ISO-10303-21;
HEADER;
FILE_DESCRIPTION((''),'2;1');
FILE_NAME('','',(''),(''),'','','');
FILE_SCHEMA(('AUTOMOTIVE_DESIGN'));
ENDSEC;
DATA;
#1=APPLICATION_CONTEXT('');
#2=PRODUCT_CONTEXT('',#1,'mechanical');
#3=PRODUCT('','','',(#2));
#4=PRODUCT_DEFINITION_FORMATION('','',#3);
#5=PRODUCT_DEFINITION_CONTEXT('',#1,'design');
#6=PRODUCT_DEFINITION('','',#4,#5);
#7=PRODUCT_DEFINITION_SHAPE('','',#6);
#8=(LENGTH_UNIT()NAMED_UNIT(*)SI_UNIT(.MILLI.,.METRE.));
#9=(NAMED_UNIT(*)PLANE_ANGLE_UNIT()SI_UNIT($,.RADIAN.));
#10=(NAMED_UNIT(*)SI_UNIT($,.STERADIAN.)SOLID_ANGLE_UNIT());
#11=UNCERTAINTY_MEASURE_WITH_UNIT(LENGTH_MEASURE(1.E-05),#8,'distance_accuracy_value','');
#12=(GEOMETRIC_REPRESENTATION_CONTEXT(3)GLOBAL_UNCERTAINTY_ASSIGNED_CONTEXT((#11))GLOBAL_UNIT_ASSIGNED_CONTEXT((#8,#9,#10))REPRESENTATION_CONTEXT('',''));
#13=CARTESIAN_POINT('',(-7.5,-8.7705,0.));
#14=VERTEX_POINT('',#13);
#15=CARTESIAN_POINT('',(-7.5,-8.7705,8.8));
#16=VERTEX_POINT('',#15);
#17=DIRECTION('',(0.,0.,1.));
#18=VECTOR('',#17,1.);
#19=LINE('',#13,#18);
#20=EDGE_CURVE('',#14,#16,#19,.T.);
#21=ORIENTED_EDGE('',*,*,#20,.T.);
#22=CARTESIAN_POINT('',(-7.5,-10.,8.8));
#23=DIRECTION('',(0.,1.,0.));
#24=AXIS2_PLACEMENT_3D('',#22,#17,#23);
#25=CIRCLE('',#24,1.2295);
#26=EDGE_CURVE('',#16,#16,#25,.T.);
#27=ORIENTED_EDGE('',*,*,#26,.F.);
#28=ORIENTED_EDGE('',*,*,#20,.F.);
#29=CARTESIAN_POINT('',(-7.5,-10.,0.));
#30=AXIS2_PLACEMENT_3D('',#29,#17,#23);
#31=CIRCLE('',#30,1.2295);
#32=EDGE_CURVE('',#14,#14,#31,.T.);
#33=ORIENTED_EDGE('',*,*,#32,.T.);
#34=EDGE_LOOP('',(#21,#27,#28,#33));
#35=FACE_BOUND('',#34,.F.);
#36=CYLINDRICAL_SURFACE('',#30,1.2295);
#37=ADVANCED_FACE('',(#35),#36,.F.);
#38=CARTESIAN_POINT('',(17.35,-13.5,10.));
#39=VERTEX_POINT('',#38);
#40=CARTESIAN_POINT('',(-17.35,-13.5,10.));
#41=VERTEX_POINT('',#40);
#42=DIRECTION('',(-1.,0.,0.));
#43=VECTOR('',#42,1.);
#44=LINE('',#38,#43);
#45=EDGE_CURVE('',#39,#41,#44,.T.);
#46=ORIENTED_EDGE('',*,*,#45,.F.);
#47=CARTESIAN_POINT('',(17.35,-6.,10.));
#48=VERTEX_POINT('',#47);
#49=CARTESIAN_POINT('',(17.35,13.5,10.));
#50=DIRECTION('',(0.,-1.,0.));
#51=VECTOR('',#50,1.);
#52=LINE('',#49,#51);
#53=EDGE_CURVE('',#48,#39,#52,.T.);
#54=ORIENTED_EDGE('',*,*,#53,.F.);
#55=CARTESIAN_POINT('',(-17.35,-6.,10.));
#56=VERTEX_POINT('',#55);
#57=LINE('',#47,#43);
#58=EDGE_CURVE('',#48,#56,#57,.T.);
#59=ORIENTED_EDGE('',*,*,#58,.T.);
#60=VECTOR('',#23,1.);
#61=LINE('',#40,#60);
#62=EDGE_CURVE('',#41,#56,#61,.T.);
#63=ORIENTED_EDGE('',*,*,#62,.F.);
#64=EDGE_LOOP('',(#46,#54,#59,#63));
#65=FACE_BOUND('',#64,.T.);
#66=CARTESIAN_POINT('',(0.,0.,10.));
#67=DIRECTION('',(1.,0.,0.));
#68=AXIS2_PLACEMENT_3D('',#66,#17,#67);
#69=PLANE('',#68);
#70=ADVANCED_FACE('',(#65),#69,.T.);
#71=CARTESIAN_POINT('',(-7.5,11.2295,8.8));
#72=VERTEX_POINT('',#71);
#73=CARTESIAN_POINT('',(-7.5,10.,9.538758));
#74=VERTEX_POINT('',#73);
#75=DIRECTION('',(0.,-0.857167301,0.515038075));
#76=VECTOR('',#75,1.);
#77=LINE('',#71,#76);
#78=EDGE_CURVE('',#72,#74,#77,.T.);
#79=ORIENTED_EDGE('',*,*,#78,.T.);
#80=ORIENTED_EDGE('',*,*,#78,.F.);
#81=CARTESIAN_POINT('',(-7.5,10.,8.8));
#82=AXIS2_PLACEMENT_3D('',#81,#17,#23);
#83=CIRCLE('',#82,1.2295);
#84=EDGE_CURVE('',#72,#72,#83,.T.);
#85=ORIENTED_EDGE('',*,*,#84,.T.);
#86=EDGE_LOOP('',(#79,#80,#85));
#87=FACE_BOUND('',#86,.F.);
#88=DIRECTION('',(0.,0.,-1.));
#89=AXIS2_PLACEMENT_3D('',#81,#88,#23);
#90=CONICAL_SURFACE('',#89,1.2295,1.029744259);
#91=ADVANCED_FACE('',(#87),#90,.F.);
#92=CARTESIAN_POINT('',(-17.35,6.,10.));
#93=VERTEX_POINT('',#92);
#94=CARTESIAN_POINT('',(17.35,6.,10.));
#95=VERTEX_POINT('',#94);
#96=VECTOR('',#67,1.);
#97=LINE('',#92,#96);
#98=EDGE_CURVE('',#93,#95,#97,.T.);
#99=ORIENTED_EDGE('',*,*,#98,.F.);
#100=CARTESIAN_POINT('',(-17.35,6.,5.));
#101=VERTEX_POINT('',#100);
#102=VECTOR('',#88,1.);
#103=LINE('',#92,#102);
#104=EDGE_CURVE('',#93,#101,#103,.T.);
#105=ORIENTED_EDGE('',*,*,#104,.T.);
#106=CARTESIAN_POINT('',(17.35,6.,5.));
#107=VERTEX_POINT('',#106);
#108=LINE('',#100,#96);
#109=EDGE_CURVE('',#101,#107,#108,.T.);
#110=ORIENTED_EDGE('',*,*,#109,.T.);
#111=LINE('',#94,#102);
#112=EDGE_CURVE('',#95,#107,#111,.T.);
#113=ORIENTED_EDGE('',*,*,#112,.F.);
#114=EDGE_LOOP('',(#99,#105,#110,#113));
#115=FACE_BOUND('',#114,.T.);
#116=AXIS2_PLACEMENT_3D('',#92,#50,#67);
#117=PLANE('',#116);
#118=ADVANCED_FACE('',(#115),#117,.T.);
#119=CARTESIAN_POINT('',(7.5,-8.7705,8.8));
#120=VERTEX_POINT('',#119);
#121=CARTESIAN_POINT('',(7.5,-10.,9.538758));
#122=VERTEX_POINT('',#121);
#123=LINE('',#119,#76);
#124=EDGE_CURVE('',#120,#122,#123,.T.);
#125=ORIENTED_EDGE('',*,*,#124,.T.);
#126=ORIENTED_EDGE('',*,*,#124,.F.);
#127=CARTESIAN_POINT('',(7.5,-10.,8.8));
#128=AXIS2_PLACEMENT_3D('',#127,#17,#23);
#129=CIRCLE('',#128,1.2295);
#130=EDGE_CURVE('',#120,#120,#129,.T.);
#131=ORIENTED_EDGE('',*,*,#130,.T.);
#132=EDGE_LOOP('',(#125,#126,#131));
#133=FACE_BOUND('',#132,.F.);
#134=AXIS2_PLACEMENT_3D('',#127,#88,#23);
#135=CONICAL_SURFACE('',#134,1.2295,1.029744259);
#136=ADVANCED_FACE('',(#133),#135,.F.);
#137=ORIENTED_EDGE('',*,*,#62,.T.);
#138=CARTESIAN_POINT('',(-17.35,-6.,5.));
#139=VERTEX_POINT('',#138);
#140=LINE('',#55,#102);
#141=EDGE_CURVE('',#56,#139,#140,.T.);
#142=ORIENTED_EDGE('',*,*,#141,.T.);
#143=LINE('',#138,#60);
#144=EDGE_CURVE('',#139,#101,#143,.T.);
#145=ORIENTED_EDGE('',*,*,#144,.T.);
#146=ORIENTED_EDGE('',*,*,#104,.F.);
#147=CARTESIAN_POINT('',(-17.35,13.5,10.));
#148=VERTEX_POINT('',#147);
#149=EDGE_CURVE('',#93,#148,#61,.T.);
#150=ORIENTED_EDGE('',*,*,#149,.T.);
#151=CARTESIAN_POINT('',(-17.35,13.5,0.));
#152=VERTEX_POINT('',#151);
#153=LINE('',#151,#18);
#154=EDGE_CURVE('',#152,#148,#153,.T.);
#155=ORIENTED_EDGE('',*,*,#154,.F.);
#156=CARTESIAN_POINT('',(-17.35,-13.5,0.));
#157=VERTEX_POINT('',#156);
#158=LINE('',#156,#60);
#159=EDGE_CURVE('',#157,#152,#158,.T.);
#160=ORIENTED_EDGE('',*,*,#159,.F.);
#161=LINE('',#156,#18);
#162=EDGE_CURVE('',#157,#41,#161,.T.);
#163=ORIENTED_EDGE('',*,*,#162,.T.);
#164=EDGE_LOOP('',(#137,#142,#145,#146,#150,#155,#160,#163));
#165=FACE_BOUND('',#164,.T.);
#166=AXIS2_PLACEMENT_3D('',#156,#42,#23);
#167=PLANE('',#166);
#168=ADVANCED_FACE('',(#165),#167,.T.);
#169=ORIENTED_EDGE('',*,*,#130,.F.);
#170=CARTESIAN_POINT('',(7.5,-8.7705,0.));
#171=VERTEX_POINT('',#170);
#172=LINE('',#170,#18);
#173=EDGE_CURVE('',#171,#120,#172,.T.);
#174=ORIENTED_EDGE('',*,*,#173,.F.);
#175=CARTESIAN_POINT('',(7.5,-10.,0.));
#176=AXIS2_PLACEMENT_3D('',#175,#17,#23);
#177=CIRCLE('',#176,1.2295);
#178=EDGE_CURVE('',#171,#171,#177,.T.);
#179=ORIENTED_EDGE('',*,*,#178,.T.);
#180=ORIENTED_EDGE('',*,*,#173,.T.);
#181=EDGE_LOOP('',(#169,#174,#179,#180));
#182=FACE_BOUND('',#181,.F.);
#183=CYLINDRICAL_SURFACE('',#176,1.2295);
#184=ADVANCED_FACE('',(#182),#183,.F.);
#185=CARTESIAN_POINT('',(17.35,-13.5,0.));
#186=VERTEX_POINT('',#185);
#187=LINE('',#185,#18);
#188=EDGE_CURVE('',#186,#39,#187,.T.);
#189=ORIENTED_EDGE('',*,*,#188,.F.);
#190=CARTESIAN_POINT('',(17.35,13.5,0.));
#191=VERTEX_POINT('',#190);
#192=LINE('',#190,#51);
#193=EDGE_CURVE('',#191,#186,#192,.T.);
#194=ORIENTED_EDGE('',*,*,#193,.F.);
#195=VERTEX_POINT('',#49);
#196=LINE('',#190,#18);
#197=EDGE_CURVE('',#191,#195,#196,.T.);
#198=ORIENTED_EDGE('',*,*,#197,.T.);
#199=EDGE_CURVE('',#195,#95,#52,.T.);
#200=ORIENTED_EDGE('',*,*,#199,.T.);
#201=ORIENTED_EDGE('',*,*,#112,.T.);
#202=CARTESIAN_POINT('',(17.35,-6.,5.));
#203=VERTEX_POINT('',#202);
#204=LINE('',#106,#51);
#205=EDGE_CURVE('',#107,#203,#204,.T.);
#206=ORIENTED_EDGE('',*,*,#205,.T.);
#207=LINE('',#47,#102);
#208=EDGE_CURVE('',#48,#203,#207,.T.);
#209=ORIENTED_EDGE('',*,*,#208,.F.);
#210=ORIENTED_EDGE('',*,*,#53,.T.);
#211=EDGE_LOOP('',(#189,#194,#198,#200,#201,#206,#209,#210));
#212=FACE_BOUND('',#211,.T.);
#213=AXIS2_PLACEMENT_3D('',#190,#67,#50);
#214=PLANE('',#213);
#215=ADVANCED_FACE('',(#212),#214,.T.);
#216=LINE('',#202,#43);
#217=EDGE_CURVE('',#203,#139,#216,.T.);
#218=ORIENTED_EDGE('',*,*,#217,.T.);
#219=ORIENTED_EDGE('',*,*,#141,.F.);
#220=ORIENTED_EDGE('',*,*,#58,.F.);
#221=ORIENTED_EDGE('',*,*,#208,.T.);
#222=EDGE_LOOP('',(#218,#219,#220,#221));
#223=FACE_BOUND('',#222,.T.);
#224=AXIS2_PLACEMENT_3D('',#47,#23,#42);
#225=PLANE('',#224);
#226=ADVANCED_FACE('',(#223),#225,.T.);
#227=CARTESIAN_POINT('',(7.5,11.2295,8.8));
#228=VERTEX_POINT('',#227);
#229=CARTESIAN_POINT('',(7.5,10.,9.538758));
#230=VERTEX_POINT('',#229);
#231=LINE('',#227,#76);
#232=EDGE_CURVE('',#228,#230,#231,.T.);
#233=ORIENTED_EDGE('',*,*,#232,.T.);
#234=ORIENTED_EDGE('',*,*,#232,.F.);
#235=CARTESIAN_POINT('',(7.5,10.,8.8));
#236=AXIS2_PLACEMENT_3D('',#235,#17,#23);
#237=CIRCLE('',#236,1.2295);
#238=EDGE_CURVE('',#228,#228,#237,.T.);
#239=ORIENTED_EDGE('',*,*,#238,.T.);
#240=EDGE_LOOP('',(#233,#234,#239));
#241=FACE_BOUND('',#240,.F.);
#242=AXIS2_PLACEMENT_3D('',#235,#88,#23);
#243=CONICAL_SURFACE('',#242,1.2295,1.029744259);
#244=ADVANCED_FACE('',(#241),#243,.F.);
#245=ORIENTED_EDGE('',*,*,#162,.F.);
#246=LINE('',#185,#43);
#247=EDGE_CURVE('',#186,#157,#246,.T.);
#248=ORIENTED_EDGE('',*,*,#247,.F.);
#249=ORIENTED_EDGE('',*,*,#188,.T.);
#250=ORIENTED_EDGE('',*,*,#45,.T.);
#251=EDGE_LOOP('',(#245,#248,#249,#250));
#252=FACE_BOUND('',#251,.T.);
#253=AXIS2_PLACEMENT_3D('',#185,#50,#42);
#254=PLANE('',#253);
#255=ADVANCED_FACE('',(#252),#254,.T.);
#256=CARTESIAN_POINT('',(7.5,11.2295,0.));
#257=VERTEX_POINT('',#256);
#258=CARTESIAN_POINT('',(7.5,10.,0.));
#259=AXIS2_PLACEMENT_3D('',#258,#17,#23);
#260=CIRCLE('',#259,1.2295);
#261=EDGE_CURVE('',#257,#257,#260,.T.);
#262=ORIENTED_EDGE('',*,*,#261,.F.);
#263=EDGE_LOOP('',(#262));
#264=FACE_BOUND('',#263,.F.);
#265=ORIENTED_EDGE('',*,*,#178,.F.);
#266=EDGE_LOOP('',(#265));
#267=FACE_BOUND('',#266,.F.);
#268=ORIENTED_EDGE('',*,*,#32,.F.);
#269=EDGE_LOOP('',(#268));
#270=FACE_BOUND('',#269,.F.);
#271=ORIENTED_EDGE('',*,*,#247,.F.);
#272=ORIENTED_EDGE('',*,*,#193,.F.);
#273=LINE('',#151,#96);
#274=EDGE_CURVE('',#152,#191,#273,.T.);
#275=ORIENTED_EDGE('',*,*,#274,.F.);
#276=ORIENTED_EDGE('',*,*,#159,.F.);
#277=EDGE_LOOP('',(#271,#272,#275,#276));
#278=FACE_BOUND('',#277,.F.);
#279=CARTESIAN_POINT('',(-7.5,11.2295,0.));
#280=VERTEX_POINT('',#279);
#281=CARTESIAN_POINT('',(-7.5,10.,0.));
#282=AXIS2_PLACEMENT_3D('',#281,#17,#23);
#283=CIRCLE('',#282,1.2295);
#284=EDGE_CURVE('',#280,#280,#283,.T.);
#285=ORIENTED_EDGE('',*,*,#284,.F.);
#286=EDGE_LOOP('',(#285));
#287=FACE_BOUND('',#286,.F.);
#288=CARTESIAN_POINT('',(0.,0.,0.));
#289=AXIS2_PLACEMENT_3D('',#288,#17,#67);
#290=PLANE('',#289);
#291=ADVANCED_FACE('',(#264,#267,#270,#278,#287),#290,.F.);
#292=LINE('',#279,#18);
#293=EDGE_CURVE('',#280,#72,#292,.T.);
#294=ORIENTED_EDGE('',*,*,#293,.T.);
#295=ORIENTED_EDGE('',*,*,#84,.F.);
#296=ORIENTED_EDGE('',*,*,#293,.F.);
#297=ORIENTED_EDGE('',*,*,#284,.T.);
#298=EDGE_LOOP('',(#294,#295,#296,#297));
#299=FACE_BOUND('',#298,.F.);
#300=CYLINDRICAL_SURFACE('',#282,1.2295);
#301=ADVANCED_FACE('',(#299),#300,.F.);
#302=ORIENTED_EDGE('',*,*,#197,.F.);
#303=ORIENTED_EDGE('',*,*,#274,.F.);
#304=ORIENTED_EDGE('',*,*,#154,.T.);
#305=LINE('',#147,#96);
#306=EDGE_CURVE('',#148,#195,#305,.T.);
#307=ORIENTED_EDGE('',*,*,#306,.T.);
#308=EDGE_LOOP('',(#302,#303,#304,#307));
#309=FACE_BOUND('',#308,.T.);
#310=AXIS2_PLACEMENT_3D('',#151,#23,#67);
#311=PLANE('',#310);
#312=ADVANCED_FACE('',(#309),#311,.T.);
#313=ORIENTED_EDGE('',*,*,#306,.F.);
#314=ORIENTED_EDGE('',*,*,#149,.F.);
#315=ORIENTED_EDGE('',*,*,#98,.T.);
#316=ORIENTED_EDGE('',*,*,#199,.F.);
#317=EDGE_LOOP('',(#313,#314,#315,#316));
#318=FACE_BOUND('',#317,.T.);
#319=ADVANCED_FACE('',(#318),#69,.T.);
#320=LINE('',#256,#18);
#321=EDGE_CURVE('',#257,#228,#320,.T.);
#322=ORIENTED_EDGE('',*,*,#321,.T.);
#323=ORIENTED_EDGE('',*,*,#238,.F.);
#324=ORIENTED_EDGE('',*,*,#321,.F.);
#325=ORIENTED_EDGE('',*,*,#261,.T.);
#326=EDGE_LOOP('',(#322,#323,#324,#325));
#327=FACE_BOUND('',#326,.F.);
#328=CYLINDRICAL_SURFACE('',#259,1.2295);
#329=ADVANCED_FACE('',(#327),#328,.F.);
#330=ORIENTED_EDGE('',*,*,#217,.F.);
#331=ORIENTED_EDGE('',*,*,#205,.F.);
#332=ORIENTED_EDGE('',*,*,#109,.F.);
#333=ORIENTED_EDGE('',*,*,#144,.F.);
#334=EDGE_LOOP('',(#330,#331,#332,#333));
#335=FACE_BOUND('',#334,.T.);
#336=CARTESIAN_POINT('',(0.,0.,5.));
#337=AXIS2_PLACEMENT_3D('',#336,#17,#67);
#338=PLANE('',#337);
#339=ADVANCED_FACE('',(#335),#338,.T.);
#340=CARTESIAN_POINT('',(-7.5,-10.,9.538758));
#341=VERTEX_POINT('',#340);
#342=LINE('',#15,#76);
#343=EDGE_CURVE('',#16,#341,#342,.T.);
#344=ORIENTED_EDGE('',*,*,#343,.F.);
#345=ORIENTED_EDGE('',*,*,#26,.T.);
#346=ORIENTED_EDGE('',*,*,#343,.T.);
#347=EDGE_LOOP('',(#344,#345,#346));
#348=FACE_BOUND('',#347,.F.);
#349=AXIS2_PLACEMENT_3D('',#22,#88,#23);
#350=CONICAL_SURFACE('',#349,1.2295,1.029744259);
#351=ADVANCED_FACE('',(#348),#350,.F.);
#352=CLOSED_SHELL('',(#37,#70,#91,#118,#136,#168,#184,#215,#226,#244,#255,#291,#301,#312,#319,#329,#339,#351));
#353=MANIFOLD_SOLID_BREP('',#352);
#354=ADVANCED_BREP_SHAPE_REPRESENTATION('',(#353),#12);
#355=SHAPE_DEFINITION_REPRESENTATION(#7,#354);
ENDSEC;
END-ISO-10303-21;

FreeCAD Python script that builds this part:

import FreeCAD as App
import Part
import Sketcher
Q = App.Units.Quantity


def add_polygon(sketch, points):
    """Adds a closed chain of lines whose ends are joined by coincident constraints."""
    first, n = sketch.GeometryCount, len(points)
    for a, b in zip(points, points[1:] + points[:1]):
        sketch.addGeometry(Part.LineSegment(App.Vector(*a, 0), App.Vector(*b, 0)), False)
    for i in range(n):
        sketch.addConstraint(Sketcher.Constraint("Coincident", first + i, 2, first + (i + 1) % n, 1))

doc = App.newDocument("Part")
body = doc.addObject("PartDesign::Body", "Body")

sketch1 = doc.addObject("Sketcher::SketchObject", "Sketch")
body.addObject(sketch1)
sketch1.AttachmentSupport = (doc.XY_Plane, [""])
sketch1.MapMode = "FlatFace"
add_polygon(sketch1, [(-17.35, -13.5), (17.35, -13.5), (17.35, 13.5), (-17.35, 13.5)])
sketch1.addConstraint([
    Sketcher.Constraint("Horizontal", 0),
    Sketcher.Constraint("Vertical", 1),
    Sketcher.Constraint("Horizontal", 2),
    Sketcher.Constraint("Vertical", 3),
    Sketcher.Constraint("Symmetric", 0, 2, 2, 2, -1, 1),
    Sketcher.Constraint("DistanceY", 1, 1, 1, 2, Q("27 mm")),
    Sketcher.Constraint("DistanceX", 0, 1, 0, 2, Q("34.7 mm")),
])
pad1 = doc.addObject("PartDesign::Pad", "Pad")
body.addObject(pad1)
pad1.Profile = sketch1
pad1.Length = 10

sketch2 = doc.addObject("Sketcher::SketchObject", "Sketch001")
body.addObject(sketch2)
sketch2.AttachmentSupport = (doc.XY_Plane, [""])
sketch2.MapMode = "FlatFace"
sketch2.AttachmentOffset = App.Placement(App.Vector(0, 0, 10), App.Rotation())
add_polygon(sketch2, [(-17.35, -6), (17.35, -6), (17.35, 6), (-17.35, 6)])
sketch2.addConstraint([
    Sketcher.Constraint("Horizontal", 0),
    Sketcher.Constraint("Vertical", 1),
    Sketcher.Constraint("Horizontal", 2),
    Sketcher.Constraint("Vertical", 3),
    Sketcher.Constraint("Symmetric", 0, 2, 2, 2, -1, 1),
    Sketcher.Constraint("DistanceY", 1, 1, 1, 2, Q("12 mm")),
    Sketcher.Constraint("DistanceX", 0, 1, 0, 2, Q("34.7 mm")),
])
pocket1 = doc.addObject("PartDesign::Pocket", "Pocket")
body.addObject(pocket1)
pocket1.Profile = sketch2
pocket1.Length = 5

sketch3 = doc.addObject("Sketcher::SketchObject", "Sketch002")
body.addObject(sketch3)
sketch3.AttachmentSupport = (doc.XY_Plane, [""])
sketch3.MapMode = "FlatFace"
sketch3.addGeometry([
    Part.Circle(App.Vector(7.5, 10, 0), App.Vector(0, 0, 1), 1.2295),
    Part.Circle(App.Vector(7.5, -10, 0), App.Vector(0, 0, 1), 1.2295),
    Part.Circle(App.Vector(-7.5, 10, 0), App.Vector(0, 0, 1), 1.2295),
    Part.Circle(App.Vector(-7.5, -10, 0), App.Vector(0, 0, 1), 1.2295),
], False)
sketch3.addConstraint([
    Sketcher.Constraint("Equal", 0, 1),
    Sketcher.Constraint("Equal", 1, 2),
    Sketcher.Constraint("Equal", 2, 3),
    Sketcher.Constraint("Symmetric", 1, 3, 2, 3, -1, 1),
    Sketcher.Constraint("Symmetric", 0, 3, 3, 3, -1, 1),
    Sketcher.Constraint("Symmetric", 0, 3, 2, 3, -2),
    Sketcher.Constraint("Diameter", 0, Q("2.459 mm")),
    Sketcher.Constraint("DistanceY", -1, 1, 0, 3, Q("10 mm")),
    Sketcher.Constraint("DistanceX", 2, 3, 0, 3, Q("15 mm")),
])
doc.recompute()
hole = doc.addObject("PartDesign::Hole", "Hole")
body.addObject(hole)
hole.Profile = sketch3
hole.ThreadType = "None"
hole.Diameter = 2.459
hole.DepthType = "Dimension"
hole.Depth = 8.8
hole.DrillPoint = "Angled"
hole.DrillPointAngle = 118
hole.Reversed = True

doc.recompute()
